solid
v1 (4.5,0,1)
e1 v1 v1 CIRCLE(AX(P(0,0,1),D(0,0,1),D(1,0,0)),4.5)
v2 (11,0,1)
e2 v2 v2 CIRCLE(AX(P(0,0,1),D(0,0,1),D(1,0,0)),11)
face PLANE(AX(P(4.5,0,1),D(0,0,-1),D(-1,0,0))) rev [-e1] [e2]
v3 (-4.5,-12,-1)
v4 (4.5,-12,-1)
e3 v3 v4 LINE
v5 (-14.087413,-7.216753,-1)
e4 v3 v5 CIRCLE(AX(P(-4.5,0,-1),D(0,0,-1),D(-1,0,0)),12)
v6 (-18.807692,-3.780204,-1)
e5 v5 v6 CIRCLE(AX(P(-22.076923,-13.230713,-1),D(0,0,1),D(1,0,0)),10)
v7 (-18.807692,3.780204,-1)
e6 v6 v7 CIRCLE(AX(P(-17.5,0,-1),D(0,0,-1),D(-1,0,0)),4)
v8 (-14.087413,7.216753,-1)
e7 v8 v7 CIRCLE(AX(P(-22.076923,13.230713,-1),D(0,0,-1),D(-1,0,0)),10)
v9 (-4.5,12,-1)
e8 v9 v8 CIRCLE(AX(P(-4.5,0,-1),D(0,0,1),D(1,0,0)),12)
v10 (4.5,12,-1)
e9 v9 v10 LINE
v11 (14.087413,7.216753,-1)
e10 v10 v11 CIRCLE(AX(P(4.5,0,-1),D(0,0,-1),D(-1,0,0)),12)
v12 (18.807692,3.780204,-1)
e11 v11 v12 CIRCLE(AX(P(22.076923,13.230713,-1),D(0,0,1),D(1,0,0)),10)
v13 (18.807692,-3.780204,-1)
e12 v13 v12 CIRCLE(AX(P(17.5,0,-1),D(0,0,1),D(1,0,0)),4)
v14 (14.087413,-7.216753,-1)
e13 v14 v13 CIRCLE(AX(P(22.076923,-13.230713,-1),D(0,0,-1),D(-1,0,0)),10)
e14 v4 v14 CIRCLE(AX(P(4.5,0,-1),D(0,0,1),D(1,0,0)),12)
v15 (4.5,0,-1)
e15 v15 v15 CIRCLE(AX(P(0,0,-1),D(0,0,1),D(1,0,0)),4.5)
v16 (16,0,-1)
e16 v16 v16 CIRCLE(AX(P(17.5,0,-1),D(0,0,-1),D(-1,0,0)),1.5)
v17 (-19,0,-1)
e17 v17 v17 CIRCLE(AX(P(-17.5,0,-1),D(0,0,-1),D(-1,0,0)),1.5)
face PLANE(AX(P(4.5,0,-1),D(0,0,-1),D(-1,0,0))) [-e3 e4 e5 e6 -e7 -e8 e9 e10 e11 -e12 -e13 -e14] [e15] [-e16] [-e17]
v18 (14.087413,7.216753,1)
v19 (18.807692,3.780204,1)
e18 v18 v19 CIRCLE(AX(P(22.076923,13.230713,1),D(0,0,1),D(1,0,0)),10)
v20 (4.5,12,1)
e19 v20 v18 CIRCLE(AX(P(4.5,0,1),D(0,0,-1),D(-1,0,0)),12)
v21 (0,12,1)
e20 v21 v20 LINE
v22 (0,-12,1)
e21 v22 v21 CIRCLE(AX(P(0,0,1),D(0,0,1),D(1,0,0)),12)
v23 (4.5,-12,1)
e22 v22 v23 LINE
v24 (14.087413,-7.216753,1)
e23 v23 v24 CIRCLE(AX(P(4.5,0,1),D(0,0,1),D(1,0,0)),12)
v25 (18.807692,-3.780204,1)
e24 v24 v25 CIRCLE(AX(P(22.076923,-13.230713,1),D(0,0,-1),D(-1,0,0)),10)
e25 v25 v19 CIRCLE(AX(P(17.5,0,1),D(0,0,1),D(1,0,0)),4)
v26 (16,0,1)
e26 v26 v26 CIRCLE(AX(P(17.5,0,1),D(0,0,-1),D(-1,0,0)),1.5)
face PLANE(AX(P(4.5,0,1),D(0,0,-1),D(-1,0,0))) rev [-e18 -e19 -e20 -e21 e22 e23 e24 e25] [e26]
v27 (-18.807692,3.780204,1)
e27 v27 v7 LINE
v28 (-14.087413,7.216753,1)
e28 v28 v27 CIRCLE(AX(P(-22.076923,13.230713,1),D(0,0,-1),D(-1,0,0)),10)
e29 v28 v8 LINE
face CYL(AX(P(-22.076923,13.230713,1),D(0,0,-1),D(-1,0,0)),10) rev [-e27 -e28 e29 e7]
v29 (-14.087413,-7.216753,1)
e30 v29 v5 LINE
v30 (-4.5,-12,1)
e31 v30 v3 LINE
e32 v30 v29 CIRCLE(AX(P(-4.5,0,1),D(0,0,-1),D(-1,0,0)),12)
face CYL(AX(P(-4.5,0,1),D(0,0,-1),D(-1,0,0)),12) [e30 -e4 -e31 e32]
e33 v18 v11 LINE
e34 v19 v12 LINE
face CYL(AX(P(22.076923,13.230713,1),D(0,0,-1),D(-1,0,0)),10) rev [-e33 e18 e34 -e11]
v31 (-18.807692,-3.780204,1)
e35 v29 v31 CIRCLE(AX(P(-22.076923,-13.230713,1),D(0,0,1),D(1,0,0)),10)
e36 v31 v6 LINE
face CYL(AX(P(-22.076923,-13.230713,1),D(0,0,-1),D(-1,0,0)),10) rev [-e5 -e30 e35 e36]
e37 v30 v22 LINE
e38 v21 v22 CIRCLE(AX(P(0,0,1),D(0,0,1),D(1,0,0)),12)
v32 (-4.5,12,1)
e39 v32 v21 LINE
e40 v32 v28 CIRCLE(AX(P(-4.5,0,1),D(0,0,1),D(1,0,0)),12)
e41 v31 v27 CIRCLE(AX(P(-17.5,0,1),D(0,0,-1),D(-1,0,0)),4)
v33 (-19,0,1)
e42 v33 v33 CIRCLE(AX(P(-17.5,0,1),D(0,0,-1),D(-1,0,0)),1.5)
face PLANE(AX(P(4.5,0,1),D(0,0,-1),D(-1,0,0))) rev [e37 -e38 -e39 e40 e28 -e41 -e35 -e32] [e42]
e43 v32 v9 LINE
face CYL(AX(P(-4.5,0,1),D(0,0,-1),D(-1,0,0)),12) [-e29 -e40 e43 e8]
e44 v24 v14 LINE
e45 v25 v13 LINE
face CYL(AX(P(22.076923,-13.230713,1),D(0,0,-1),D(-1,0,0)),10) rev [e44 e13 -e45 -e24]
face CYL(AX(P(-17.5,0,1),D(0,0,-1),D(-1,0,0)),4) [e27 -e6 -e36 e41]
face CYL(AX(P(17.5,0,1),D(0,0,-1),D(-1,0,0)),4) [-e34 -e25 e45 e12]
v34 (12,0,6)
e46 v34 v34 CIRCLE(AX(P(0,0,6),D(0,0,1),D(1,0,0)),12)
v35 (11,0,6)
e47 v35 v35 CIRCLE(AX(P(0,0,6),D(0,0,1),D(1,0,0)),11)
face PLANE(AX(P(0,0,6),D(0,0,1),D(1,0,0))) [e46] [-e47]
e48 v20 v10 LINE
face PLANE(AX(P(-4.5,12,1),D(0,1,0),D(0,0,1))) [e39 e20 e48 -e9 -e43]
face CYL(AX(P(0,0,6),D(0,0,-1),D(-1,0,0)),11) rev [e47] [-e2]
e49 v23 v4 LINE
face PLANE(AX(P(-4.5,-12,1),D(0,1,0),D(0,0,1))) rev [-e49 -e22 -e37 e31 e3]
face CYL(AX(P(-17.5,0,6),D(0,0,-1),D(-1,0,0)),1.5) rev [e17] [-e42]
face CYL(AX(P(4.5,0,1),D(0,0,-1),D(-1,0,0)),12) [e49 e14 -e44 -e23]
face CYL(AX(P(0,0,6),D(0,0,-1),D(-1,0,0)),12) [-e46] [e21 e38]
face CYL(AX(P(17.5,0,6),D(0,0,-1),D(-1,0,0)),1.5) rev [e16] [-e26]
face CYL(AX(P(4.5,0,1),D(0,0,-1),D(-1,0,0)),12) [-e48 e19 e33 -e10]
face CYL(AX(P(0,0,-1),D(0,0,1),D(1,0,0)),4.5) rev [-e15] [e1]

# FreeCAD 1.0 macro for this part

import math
import FreeCAD as App
import Part
import Sketcher
Q = App.Units.Quantity

doc = App.newDocument("Part")
body = doc.addObject("PartDesign::Body", "Body")

sketch1 = body.newObject("Sketcher::SketchObject", "Sketch")
sketch1.AttachmentSupport = (doc.getObject("XY_Plane"), [""])
sketch1.MapMode = "FlatFace"
sketch1.addGeometry([
    Part.LineSegment(App.Vector(4.5, 12, 0), App.Vector(-4.5, 12, 0)),
    Part.ArcOfCircle(Part.Circle(App.Vector(-4.5, 0, 0), App.Vector(0, 0, 1), 12), math.radians(90), math.radians(143)),
    Part.ArcOfCircle(Part.Circle(App.Vector(-22.1, 13.2, 0), App.Vector(0, 0, 1), 10), math.radians(-71), math.radians(-37)),
    Part.ArcOfCircle(Part.Circle(App.Vector(-17.5, 0, 0), App.Vector(0, 0, 1), 4), math.radians(109), math.radians(251)),
    Part.ArcOfCircle(Part.Circle(App.Vector(-22.1, -13.2, 0), App.Vector(0, 0, 1), 10), math.radians(37), math.radians(71)),
    Part.ArcOfCircle(Part.Circle(App.Vector(-4.5, 0, 0), App.Vector(0, 0, 1), 12), math.radians(-143), math.radians(-90)),
    Part.LineSegment(App.Vector(-4.5, -12, 0), App.Vector(4.5, -12, 0)),
    Part.ArcOfCircle(Part.Circle(App.Vector(4.5, 0, 0), App.Vector(0, 0, 1), 12), math.radians(-90), math.radians(-37)),
    Part.ArcOfCircle(Part.Circle(App.Vector(22.1, -13.2, 0), App.Vector(0, 0, 1), 10), math.radians(109), math.radians(143)),
    Part.ArcOfCircle(Part.Circle(App.Vector(17.5, 0, 0), App.Vector(0, 0, 1), 4), math.radians(-71), math.radians(71)),
    Part.ArcOfCircle(Part.Circle(App.Vector(22.1, 13.2, 0), App.Vector(0, 0, 1), 10), math.radians(-143), math.radians(-109)),
    Part.ArcOfCircle(Part.Circle(App.Vector(4.5, 0, 0), App.Vector(0, 0, 1), 12), math.radians(37), math.radians(90)),
], False)
sketch1.addConstraint([
    Sketcher.Constraint("Tangent", 0, 2, 1, 1),
    Sketcher.Constraint("Tangent", 1, 2, 2, 2),
    Sketcher.Constraint("Tangent", 2, 1, 3, 1),
    Sketcher.Constraint("Tangent", 3, 2, 4, 2),
    Sketcher.Constraint("Tangent", 4, 1, 5, 1),
    Sketcher.Constraint("Tangent", 5, 2, 6, 1),
    Sketcher.Constraint("Tangent", 6, 2, 7, 1),
    Sketcher.Constraint("Tangent", 7, 2, 8, 2),
    Sketcher.Constraint("Tangent", 8, 1, 9, 1),
    Sketcher.Constraint("Tangent", 9, 2, 10, 2),
    Sketcher.Constraint("Tangent", 10, 1, 11, 1),
    Sketcher.Constraint("Tangent", 11, 2, 0, 1),
    Sketcher.Constraint("Horizontal", 0),
    Sketcher.Constraint("Horizontal", 6),
    Sketcher.Constraint("Coincident", 5, 3, 1, 3),
    Sketcher.Constraint("Coincident", 11, 3, 7, 3),
    Sketcher.Constraint("Equal", 2, 4),
    Sketcher.Constraint("Equal", 1, 5),
    Sketcher.Constraint("Equal", 5, 7),
    Sketcher.Constraint("Equal", 4, 8),
    Sketcher.Constraint("Equal", 3, 9),
    Sketcher.Constraint("Equal", 8, 10),
    Sketcher.Constraint("Symmetric", 1, 3, 7, 3, -1, 1),
    Sketcher.Constraint("Symmetric", 3, 3, 9, 3, -1, 1),
    Sketcher.Constraint("PointOnObject", 3, 3, -1),
    Sketcher.Constraint("Radius", 1, Q("12 mm")),
    Sketcher.Constraint("Radius", 2, Q("10 mm")),
    Sketcher.Constraint("Radius", 3, Q("4 mm")),
    Sketcher.Constraint("DistanceX", 0, 2, 0, 1, Q("9 mm")),
    Sketcher.Constraint("DistanceX", 3, 3, 1, 3, Q("13 mm")),
])
pad1 = body.newObject("PartDesign::Pad", "Pad")
pad1.Profile = sketch1
pad1.Length = 2
pad1.Midplane = True

sketch2 = body.newObject("Sketcher::SketchObject", "Sketch001")
sketch2.AttachmentSupport = (doc.getObject("XY_Plane"), [""])
sketch2.MapMode = "FlatFace"
sketch2.AttachmentOffset = App.Placement(App.Vector(0, 0, 1), App.Rotation())
sketch2.addGeometry([
    Part.Circle(App.Vector(0, 0, 0), App.Vector(0, 0, 1), 12),
    Part.Circle(App.Vector(0, 0, 0), App.Vector(0, 0, 1), 11),
], False)
sketch2.addConstraint([
    Sketcher.Constraint("Coincident", 0, 3, -1, 1),
    Sketcher.Constraint("Coincident", 1, 3, -1, 1),
    Sketcher.Constraint("Diameter", 0, Q("24 mm")),
    Sketcher.Constraint("Diameter", 1, Q("22 mm")),
])
pad2 = body.newObject("PartDesign::Pad", "Pad001")
pad2.Profile = sketch2
pad2.Length = 5

sketch3 = body.newObject("Sketcher::SketchObject", "Sketch002")
sketch3.AttachmentSupport = (doc.getObject("XY_Plane"), [""])
sketch3.MapMode = "FlatFace"
sketch3.AttachmentOffset = App.Placement(App.Vector(0, 0, 1), App.Rotation())
sketch3.addGeometry(Part.Circle(App.Vector(0, 0, 0), App.Vector(0, 0, 1), 4.5), False)
sketch3.addConstraint([
    Sketcher.Constraint("Coincident", 0, 3, -1, 1),
    Sketcher.Constraint("Diameter", 0, Q("9 mm")),
])
pocket1 = body.newObject("PartDesign::Pocket", "Pocket")
pocket1.Profile = sketch3
pocket1.Type = "ThroughAll"

sketch4 = body.newObject("Sketcher::SketchObject", "Sketch003")
sketch4.AttachmentSupport = (doc.getObject("XY_Plane"), [""])
sketch4.MapMode = "FlatFace"
sketch4.AttachmentOffset = App.Placement(App.Vector(0, 0, -1), App.Rotation())
sketch4.addGeometry([
    Part.Circle(App.Vector(-17.5, 0, 0), App.Vector(0, 0, 1), 1.5),
    Part.Circle(App.Vector(17.5, 0, 0), App.Vector(0, 0, 1), 1.5),
], False)
sketch4.addConstraint([
    Sketcher.Constraint("Equal", 0, 1),
    Sketcher.Constraint("Symmetric", 0, 3, 1, 3, -1, 1),
    Sketcher.Constraint("PointOnObject", 0, 3, -1),
    Sketcher.Constraint("Diameter", 0, Q("3 mm")),
    Sketcher.Constraint("DistanceX", 0, 3, 1, 3, Q("35 mm")),
])
pocket2 = body.newObject("PartDesign::Pocket", "Pocket001")
pocket2.Profile = sketch4
pocket2.Type = "ThroughAll"
pocket2.Reversed = True

doc.recompute()
